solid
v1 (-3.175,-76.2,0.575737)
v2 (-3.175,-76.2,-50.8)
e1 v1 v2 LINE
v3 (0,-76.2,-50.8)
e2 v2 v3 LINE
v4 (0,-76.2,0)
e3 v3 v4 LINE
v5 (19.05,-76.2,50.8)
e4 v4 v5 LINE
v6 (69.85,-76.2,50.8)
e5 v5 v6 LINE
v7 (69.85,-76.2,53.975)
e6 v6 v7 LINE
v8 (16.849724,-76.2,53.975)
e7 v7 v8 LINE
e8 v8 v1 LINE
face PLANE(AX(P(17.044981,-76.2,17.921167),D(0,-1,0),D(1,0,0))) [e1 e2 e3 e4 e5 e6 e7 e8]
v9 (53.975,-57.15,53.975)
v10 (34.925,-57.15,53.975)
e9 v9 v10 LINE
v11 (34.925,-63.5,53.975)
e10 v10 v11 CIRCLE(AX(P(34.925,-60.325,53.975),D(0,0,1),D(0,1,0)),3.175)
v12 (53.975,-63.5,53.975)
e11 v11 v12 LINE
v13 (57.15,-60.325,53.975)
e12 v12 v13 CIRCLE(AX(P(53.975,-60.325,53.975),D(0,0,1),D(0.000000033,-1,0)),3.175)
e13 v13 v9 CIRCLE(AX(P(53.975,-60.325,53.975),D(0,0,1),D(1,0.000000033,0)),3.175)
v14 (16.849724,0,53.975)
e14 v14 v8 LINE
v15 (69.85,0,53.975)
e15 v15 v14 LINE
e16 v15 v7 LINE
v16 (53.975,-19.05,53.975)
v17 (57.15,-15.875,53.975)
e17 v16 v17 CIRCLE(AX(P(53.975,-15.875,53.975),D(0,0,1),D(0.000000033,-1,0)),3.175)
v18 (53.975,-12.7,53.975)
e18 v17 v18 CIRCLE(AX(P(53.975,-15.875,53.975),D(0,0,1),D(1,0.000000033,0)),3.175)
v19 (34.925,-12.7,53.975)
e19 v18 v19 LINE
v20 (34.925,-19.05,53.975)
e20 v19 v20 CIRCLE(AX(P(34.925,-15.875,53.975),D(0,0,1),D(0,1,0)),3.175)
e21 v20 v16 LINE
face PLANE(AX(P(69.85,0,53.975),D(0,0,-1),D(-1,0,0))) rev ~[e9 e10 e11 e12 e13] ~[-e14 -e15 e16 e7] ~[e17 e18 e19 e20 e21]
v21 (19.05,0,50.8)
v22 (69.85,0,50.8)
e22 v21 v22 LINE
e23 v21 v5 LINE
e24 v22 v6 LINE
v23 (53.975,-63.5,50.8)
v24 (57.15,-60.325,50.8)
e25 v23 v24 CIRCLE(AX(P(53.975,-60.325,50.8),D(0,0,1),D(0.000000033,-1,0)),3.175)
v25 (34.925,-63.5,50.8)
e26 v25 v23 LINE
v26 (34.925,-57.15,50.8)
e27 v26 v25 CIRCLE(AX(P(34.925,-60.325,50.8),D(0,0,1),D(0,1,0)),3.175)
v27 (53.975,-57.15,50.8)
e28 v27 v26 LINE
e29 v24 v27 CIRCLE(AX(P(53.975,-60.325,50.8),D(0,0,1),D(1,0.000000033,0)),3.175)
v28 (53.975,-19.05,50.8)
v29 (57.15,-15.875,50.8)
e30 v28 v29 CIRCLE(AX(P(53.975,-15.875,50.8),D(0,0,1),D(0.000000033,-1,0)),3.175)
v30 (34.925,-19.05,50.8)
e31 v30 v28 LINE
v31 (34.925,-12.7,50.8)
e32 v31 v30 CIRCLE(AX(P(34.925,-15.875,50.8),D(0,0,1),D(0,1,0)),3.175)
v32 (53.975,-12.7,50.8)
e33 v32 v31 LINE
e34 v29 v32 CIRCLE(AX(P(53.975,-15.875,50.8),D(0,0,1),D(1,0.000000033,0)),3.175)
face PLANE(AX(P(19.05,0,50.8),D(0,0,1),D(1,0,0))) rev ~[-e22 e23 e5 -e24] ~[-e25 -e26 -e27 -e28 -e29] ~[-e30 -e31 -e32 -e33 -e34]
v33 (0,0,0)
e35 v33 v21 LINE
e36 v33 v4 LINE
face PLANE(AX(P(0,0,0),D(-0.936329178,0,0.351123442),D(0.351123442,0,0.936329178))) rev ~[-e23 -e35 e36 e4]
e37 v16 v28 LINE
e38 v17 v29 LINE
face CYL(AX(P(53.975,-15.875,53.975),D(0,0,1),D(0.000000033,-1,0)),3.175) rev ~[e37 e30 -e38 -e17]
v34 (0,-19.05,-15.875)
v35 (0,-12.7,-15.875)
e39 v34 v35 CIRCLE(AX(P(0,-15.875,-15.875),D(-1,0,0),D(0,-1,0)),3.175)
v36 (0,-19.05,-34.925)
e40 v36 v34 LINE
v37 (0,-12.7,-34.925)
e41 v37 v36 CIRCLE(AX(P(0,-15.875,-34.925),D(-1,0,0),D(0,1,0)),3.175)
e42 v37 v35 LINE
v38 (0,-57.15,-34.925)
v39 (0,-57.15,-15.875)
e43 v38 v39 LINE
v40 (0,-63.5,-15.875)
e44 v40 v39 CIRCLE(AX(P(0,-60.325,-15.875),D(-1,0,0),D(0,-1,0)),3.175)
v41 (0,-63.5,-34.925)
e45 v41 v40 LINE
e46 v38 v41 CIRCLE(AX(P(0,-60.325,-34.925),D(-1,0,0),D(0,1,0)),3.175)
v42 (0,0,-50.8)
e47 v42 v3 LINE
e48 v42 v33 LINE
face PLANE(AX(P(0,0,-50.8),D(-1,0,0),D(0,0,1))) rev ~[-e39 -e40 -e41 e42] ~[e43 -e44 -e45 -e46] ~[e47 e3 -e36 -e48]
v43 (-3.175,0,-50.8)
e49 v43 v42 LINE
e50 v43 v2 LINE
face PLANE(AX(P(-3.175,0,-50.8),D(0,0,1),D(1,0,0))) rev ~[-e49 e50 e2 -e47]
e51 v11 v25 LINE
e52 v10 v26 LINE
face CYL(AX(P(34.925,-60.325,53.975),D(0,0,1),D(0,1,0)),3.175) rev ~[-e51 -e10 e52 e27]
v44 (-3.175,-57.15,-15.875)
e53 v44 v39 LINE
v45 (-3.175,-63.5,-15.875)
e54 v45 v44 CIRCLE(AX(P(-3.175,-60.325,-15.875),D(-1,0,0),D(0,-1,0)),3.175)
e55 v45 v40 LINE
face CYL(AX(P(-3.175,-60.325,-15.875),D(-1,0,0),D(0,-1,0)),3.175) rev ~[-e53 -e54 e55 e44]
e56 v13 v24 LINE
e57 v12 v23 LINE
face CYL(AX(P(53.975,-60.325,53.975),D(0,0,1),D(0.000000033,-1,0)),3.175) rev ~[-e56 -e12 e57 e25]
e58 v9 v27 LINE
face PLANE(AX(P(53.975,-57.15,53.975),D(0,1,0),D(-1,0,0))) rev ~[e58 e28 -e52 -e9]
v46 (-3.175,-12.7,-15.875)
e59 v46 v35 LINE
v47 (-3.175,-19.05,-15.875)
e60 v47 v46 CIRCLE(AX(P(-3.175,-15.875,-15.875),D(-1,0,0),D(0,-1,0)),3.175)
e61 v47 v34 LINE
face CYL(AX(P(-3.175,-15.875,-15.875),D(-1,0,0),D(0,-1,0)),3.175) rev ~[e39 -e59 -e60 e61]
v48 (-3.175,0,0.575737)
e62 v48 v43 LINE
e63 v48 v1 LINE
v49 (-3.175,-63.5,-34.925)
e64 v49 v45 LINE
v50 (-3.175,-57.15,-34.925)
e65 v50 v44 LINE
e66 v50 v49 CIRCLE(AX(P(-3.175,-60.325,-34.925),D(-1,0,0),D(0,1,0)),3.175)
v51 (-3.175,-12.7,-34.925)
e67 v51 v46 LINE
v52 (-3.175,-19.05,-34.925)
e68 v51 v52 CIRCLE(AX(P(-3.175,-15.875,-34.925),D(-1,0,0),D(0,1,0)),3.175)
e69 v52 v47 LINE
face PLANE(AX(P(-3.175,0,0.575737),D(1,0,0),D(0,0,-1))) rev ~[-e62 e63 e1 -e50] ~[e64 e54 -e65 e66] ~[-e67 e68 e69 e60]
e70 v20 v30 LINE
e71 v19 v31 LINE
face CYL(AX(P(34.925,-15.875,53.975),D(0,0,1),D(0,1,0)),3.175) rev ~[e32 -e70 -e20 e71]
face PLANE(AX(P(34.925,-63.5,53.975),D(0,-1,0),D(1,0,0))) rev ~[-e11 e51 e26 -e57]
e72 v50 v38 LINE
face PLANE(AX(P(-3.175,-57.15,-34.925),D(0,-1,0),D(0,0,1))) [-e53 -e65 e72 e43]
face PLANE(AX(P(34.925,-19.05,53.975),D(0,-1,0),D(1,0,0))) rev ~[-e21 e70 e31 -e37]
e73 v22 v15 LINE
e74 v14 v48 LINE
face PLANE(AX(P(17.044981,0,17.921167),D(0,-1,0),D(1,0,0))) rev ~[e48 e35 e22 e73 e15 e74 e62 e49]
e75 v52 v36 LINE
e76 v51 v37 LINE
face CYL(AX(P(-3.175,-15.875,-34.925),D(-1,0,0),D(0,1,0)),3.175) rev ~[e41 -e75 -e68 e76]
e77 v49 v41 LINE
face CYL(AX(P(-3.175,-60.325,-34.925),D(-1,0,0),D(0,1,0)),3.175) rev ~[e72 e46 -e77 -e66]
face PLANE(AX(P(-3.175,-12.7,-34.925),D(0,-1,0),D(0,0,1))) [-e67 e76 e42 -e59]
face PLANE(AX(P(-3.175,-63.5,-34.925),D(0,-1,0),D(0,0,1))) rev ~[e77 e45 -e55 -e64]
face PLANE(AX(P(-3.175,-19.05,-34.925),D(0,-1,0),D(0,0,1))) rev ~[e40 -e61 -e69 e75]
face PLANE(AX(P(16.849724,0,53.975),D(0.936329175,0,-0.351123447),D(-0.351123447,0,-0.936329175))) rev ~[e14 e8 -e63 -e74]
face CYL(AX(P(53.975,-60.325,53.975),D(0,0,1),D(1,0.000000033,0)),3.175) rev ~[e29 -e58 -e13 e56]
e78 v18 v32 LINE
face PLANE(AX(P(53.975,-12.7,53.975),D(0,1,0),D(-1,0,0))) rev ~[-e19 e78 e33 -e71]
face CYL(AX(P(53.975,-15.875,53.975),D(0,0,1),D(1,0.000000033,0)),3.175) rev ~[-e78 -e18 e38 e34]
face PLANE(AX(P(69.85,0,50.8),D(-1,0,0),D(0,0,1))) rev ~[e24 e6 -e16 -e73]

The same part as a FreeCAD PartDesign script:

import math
import FreeCAD as App
import Part
import Sketcher
from FreeCAD import Vector
Q = App.Units.Quantity

doc = App.newDocument("Part")
params = doc.addObject("Spreadsheet::Sheet", "Params")
for row, (alias, value) in enumerate([
    ("sketch1_width", "2 in"),
    ("sketch1_width2", "0.125 in"),
    ("pad1_length", "3 in"),
    ("sketch2_radius", "0.125 in"),
    ("sketch2_width", "0.75 in"),
    ("sketch3_radius", "0.125 in"),
    ("sketch3_width", "0.75 in"),
    ("sketch4_radius", "0.125 in"),
    ("sketch4_height", "0.75 in"),
    ("sketch5_radius", "0.125 in"),
    ("sketch5_height", "0.75 in"),
], start=1):
    params.set(f"A{row}", alias)
    params.set(f"B{row}", "=" + value)
    params.setAlias(f"B{row}", alias)

body = doc.addObject("PartDesign::Body", "Body")

sketch1 = body.newObject("Sketcher::SketchObject", "Sketch")
sketch1.AttachmentSupport = (doc.getObject("XZ_Plane"), [""])
sketch1.MapMode = "FlatFace"
sketch1.addGeometry(Part.LineSegment(Vector(0, -50.8, 0), Vector(0, 0, 0)), False)
sketch1.addGeometry(Part.LineSegment(Vector(0, 0, 0), Vector(19.1, 50.8, 0)), False)
sketch1.addGeometry(Part.LineSegment(Vector(19.1, 50.8, 0), Vector(69.8, 50.8, 0)), False)
sketch1.addGeometry(Part.LineSegment(Vector(69.8, 50.8, 0), Vector(69.8, 54, 0)), False)
sketch1.addGeometry(Part.LineSegment(Vector(69.8, 54, 0), Vector(16.8, 54, 0)), False)
sketch1.addGeometry(Part.LineSegment(Vector(16.8, 54, 0), Vector(-3.2, 0.6, 0)), False)
sketch1.addGeometry(Part.LineSegment(Vector(-3.2, 0.6, 0), Vector(-3.2, -50.8, 0)), False)
sketch1.addGeometry(Part.LineSegment(Vector(-3.2, -50.8, 0), Vector(0, -50.8, 0)), False)
sketch1.addConstraint(Sketcher.Constraint("Coincident", 0, 2, 1, 1))
sketch1.addConstraint(Sketcher.Constraint("Coincident", 1, 2, 2, 1))
sketch1.addConstraint(Sketcher.Constraint("Coincident", 2, 2, 3, 1))
sketch1.addConstraint(Sketcher.Constraint("Coincident", 3, 2, 4, 1))
sketch1.addConstraint(Sketcher.Constraint("Coincident", 4, 2, 5, 1))
sketch1.addConstraint(Sketcher.Constraint("Coincident", 5, 2, 6, 1))
sketch1.addConstraint(Sketcher.Constraint("Coincident", 6, 2, 7, 1))
sketch1.addConstraint(Sketcher.Constraint("Coincident", 7, 2, 0, 1))
sketch1.addConstraint(Sketcher.Constraint("Vertical", 0))
sketch1.addConstraint(Sketcher.Constraint("Horizontal", 2))
sketch1.addConstraint(Sketcher.Constraint("Vertical", 3))
sketch1.addConstraint(Sketcher.Constraint("Horizontal", 4))
sketch1.addConstraint(Sketcher.Constraint("Vertical", 6))
sketch1.addConstraint(Sketcher.Constraint("Horizontal", 7))
sketch1.addConstraint(Sketcher.Constraint("Coincident", 0, 2, -1, 1))
sketch1.addConstraint(Sketcher.Constraint("Parallel", 1, 5))
sketch1.addConstraint(Sketcher.Constraint("Equal", 2, 0))
sketch1.addConstraint(Sketcher.Constraint("Equal", 7, 3))
sketch1.addConstraint(Sketcher.Constraint("DistanceX", 2, 1, 2, 2, Q("2 in")))
sketch1.addConstraint(Sketcher.Constraint("DistanceY", -1, 1, 1, 2, Q("2 in")))
sketch1.addConstraint(Sketcher.Constraint("DistanceX", 7, 1, 7, 2, Q("0.125 in")))
sketch1.addConstraint(Sketcher.Constraint("DistanceX", -1, 1, 1, 2, Q("0.75 in")))
sketch1.addConstraint(Sketcher.Constraint("Distance", 5, Q("57.030438 mm")))
sketch1.setExpression("Constraints[18]", "Params.sketch1_width")
sketch1.setExpression("Constraints[20]", "Params.sketch1_width2")
pad1 = body.newObject("PartDesign::Pad", "Pad")
pad1.Profile = sketch1
pad1.setExpression("Length", "Params.pad1_length")

sketch2 = body.newObject("Sketcher::SketchObject", "Sketch001")
sketch2.AttachmentSupport = (doc.getObject("XY_Plane"), [""])
sketch2.MapMode = "FlatFace"
sketch2.AttachmentOffset = App.Placement(Vector(0, 0, 2.125 * 25.4), App.Rotation())
sketch2.addGeometry(Part.ArcOfCircle(Part.Circle(Vector(54, -15.9, 0), Vector(0, 0, 1), 3.2), math.radians(-90), math.radians(0)), False)
sketch2.addGeometry(Part.ArcOfCircle(Part.Circle(Vector(54, -15.9, 0), Vector(0, 0, 1), 3.2), math.radians(0), math.radians(90)), False)
sketch2.addGeometry(Part.LineSegment(Vector(54, -12.7, 0), Vector(34.9, -12.7, 0)), False)
sketch2.addGeometry(Part.ArcOfCircle(Part.Circle(Vector(34.9, -15.9, 0), Vector(0, 0, 1), 3.2), math.radians(90), math.radians(270)), False)
sketch2.addGeometry(Part.LineSegment(Vector(34.9, -19.1, 0), Vector(54, -19.1, 0)), False)
sketch2.addConstraint(Sketcher.Constraint("Tangent", 0, 2, 1, 1))
sketch2.addConstraint(Sketcher.Constraint("Tangent", 1, 2, 2, 1))
sketch2.addConstraint(Sketcher.Constraint("Tangent", 2, 2, 3, 1))
sketch2.addConstraint(Sketcher.Constraint("Tangent", 3, 2, 4, 1))
sketch2.addConstraint(Sketcher.Constraint("Tangent", 4, 2, 0, 1))
sketch2.addConstraint(Sketcher.Constraint("Horizontal", 2))
sketch2.addConstraint(Sketcher.Constraint("Horizontal", 4))
sketch2.addConstraint(Sketcher.Constraint("Equal", 0, 1))
sketch2.addConstraint(Sketcher.Constraint("Horizontal", 3, 3, 0, 2))
sketch2.addConstraint(Sketcher.Constraint("Radius", 0, Q("0.125 in")))
sketch2.addConstraint(Sketcher.Constraint("DistanceX", 2, 2, 2, 1, Q("0.75 in")))
sketch2.addConstraint(Sketcher.Constraint("DistanceY", 1, 2, -1, 1, Q("0.5 in")))
sketch2.addConstraint(Sketcher.Constraint("DistanceX", -1, 1, 0, 2, Q("2.25 in")))
sketch2.setExpression("Constraints[9]", "Params.sketch2_radius")
sketch2.setExpression("Constraints[10]", "Params.sketch2_width")
pocket1 = body.newObject("PartDesign::Pocket", "Pocket")
pocket1.Profile = sketch2
pocket1.Type = "ThroughAll"

sketch3 = body.newObject("Sketcher::SketchObject", "Sketch002")
sketch3.AttachmentSupport = (doc.getObject("XY_Plane"), [""])
sketch3.MapMode = "FlatFace"
sketch3.AttachmentOffset = App.Placement(Vector(0, 0, 2.125 * 25.4), App.Rotation())
sketch3.addGeometry(Part.ArcOfCircle(Part.Circle(Vector(34.9, -60.3, 0), Vector(0, 0, 1), 3.2), math.radians(90), math.radians(270)), False)
sketch3.addGeometry(Part.LineSegment(Vector(34.9, -63.5, 0), Vector(54, -63.5, 0)), False)
sketch3.addGeometry(Part.ArcOfCircle(Part.Circle(Vector(54, -60.3, 0), Vector(0, 0, 1), 3.2), math.radians(-90), math.radians(0)), False)
sketch3.addGeometry(Part.ArcOfCircle(Part.Circle(Vector(54, -60.3, 0), Vector(0, 0, 1), 3.2), math.radians(0), math.radians(90)), False)
sketch3.addGeometry(Part.LineSegment(Vector(54, -57.1, 0), Vector(34.9, -57.1, 0)), False)
sketch3.addConstraint(Sketcher.Constraint("Tangent", 0, 2, 1, 1))
sketch3.addConstraint(Sketcher.Constraint("Tangent", 1, 2, 2, 1))
sketch3.addConstraint(Sketcher.Constraint("Tangent", 2, 2, 3, 1))
sketch3.addConstraint(Sketcher.Constraint("Tangent", 3, 2, 4, 1))
sketch3.addConstraint(Sketcher.Constraint("Tangent", 4, 2, 0, 1))
sketch3.addConstraint(Sketcher.Constraint("Horizontal", 1))
sketch3.addConstraint(Sketcher.Constraint("Horizontal", 4))
sketch3.addConstraint(Sketcher.Constraint("Equal", 0, 2))
sketch3.addConstraint(Sketcher.Constraint("Horizontal", 3, 3, 2, 2))
sketch3.addConstraint(Sketcher.Constraint("Radius", 0, Q("0.125 in")))
sketch3.addConstraint(Sketcher.Constraint("DistanceX", 1, 1, 1, 2, Q("0.75 in")))
sketch3.addConstraint(Sketcher.Constraint("DistanceY", 0, 2, -1, 1, Q("2.5 in")))
sketch3.addConstraint(Sketcher.Constraint("DistanceX", -1, 1, 2, 2, Q("2.25 in")))
sketch3.setExpression("Constraints[9]", "Params.sketch3_radius")
sketch3.setExpression("Constraints[10]", "Params.sketch3_width")
pocket2 = body.newObject("PartDesign::Pocket", "Pocket001")
pocket2.Profile = sketch3
pocket2.Type = "ThroughAll"

sketch4 = body.newObject("Sketcher::SketchObject", "Sketch003")
sketch4.AttachmentSupport = (doc.getObject("YZ_Plane"), [""])
sketch4.MapMode = "FlatFace"
sketch4.AttachmentOffset = App.Placement(Vector(0, 0, -0.125 * 25.4), App.Rotation())
sketch4.addGeometry(Part.ArcOfCircle(Part.Circle(Vector(-15.9, -34.9, 0), Vector(0, 0, 1), 3.2), math.radians(180), math.radians(360)), False)
sketch4.addGeometry(Part.LineSegment(Vector(-19.1, -34.9, 0), Vector(-19.1, -15.9, 0)), False)
sketch4.addGeometry(Part.ArcOfCircle(Part.Circle(Vector(-15.9, -15.9, 0), Vector(0, 0, 1), 3.2), math.radians(0), math.radians(180)), False)
sketch4.addGeometry(Part.LineSegment(Vector(-12.7, -15.9, 0), Vector(-12.7, -34.9, 0)), False)
sketch4.addConstraint(Sketcher.Constraint("Tangent", 0, 1, 1, 1))
sketch4.addConstraint(Sketcher.Constraint("Tangent", 1, 2, 2, 2))
sketch4.addConstraint(Sketcher.Constraint("Tangent", 2, 1, 3, 1))
sketch4.addConstraint(Sketcher.Constraint("Tangent", 3, 2, 0, 2))
sketch4.addConstraint(Sketcher.Constraint("Vertical", 1))
sketch4.addConstraint(Sketcher.Constraint("Vertical", 3))
sketch4.addConstraint(Sketcher.Constraint("Radius", 0, Q("0.125 in")))
sketch4.addConstraint(Sketcher.Constraint("DistanceY", 1, 1, 1, 2, Q("0.75 in")))
sketch4.addConstraint(Sketcher.Constraint("DistanceX", 2, 1, -1, 1, Q("0.5 in")))
sketch4.addConstraint(Sketcher.Constraint("DistanceY", 0, 3, -1, 1, Q("1.375 in")))
sketch4.setExpression("Constraints[6]", "Params.sketch4_radius")
sketch4.setExpression("Constraints[7]", "Params.sketch4_height")
pocket3 = body.newObject("PartDesign::Pocket", "Pocket002")
pocket3.Profile = sketch4
pocket3.Type = "ThroughAll"
pocket3.Reversed = True

sketch5 = body.newObject("Sketcher::SketchObject", "Sketch004")
sketch5.AttachmentSupport = (doc.getObject("YZ_Plane"), [""])
sketch5.MapMode = "FlatFace"
sketch5.AttachmentOffset = App.Placement(Vector(0, 0, -0.125 * 25.4), App.Rotation())
sketch5.addGeometry(Part.ArcOfCircle(Part.Circle(Vector(-60.3, -15.9, 0), Vector(0, 0, 1), 3.2), math.radians(0), math.radians(180)), False)
sketch5.addGeometry(Part.LineSegment(Vector(-57.1, -15.9, 0), Vector(-57.1, -34.9, 0)), False)
sketch5.addGeometry(Part.ArcOfCircle(Part.Circle(Vector(-60.3, -34.9, 0), Vector(0, 0, 1), 3.2), math.radians(180), math.radians(360)), False)
sketch5.addGeometry(Part.LineSegment(Vector(-63.5, -34.9, 0), Vector(-63.5, -15.9, 0)), False)
sketch5.addConstraint(Sketcher.Constraint("Tangent", 0, 1, 1, 1))
sketch5.addConstraint(Sketcher.Constraint("Tangent", 1, 2, 2, 2))
sketch5.addConstraint(Sketcher.Constraint("Tangent", 2, 1, 3, 1))
sketch5.addConstraint(Sketcher.Constraint("Tangent", 3, 2, 0, 2))
sketch5.addConstraint(Sketcher.Constraint("Vertical", 1))
sketch5.addConstraint(Sketcher.Constraint("Vertical", 3))
sketch5.addConstraint(Sketcher.Constraint("Radius", 0, Q("0.125 in")))
sketch5.addConstraint(Sketcher.Constraint("DistanceY", 1, 2, 1, 1, Q("0.75 in")))
sketch5.addConstraint(Sketcher.Constraint("DistanceX", 2, 1, -1, 1, Q("2.5 in")))
sketch5.addConstraint(Sketcher.Constraint("DistanceY", 0, 3, -1, 1, Q("0.625 in")))
sketch5.setExpression("Constraints[6]", "Params.sketch5_radius")
sketch5.setExpression("Constraints[7]", "Params.sketch5_height")
pocket4 = body.newObject("PartDesign::Pocket", "Pocket003")
pocket4.Profile = sketch5
pocket4.Type = "ThroughAll"
pocket4.Reversed = True

doc.recompute()
